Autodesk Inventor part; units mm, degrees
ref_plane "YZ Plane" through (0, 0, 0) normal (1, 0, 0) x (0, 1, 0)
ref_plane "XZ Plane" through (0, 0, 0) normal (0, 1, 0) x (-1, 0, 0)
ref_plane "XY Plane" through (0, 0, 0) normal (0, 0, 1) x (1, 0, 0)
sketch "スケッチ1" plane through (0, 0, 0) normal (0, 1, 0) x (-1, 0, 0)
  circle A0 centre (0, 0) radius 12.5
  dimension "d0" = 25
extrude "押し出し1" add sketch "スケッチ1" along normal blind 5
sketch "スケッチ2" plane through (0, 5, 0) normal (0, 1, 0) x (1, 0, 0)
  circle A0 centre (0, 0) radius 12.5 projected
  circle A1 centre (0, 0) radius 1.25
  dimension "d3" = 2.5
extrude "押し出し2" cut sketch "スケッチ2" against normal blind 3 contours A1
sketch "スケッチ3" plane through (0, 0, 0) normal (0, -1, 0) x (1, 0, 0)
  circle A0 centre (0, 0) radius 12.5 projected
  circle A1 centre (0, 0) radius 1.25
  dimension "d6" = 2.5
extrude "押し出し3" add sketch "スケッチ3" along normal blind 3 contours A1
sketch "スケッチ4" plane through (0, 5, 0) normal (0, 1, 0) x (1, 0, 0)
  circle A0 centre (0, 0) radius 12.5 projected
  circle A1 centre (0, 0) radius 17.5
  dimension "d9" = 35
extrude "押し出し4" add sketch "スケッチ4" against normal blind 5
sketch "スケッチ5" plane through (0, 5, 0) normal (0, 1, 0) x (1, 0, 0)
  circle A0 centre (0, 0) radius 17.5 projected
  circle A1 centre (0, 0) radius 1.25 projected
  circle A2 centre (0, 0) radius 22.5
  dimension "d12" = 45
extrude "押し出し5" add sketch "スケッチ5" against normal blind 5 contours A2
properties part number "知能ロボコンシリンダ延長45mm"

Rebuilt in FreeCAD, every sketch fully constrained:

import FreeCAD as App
import Part
import Sketcher
from FreeCAD import Vector

doc = App.newDocument("Part")
body = doc.addObject("PartDesign::Body", "Body")

sketch1 = body.newObject("Sketcher::SketchObject", "Sketch")
sketch1.AttachmentSupport = (doc.getObject("XZ_Plane"), [""])
sketch1.MapMode = "FlatFace"
sketch1.addGeometry(Part.Circle(Vector(0, 0, 0), Vector(0, 0, 1), 12), False)
sketch1.addConstraint(Sketcher.Constraint("Coincident", 0, 3, -1, 1))
sketch1.addConstraint(Sketcher.Constraint("Diameter", 0, 25.0))
pad1 = body.newObject("PartDesign::Pad", "Pad")
pad1.Profile = sketch1
pad1.Length = 5
pad1.Reversed = True

sketch2 = body.newObject("Sketcher::SketchObject", "Sketch001")
sketch2.AttachmentSupport = (doc.getObject("XZ_Plane"), [""])
sketch2.MapMode = "FlatFace"
sketch2.AttachmentOffset = App.Placement(Vector(0, 0, -5), App.Rotation())
sketch2.addGeometry(Part.Circle(Vector(0, 0, 0), Vector(0, 0, 1), 1.2), False)
sketch2.addConstraint(Sketcher.Constraint("Coincident", 0, 3, -1, 1))
sketch2.addConstraint(Sketcher.Constraint("Diameter", 0, 2.5))
pocket1 = body.newObject("PartDesign::Pocket", "Pocket")
pocket1.Profile = sketch2
pocket1.Length = 3
pocket1.Reversed = True

sketch3 = body.newObject("Sketcher::SketchObject", "Sketch002")
sketch3.AttachmentSupport = (doc.getObject("XZ_Plane"), [""])
sketch3.MapMode = "FlatFace"
sketch3.addGeometry(Part.Circle(Vector(0, 0, 0), Vector(0, 0, 1), 1.2), False)
sketch3.addConstraint(Sketcher.Constraint("Coincident", 0, 3, -1, 1))
sketch3.addConstraint(Sketcher.Constraint("Diameter", 0, 2.5))
pad2 = body.newObject("PartDesign::Pad", "Pad001")
pad2.Profile = sketch3
pad2.Length = 3

sketch4 = body.newObject("Sketcher::SketchObject", "Sketch003")
sketch4.AttachmentSupport = (doc.getObject("XZ_Plane"), [""])
sketch4.MapMode = "FlatFace"
sketch4.AttachmentOffset = App.Placement(Vector(0, 0, -5), App.Rotation())
sketch4.addGeometry(Part.Circle(Vector(0, 0, 0), Vector(0, 0, 1), 18), False)
sketch4.addGeometry(Part.Circle(Vector(0, 0, 0), Vector(0, 0, 1), 12), False)
sketch4.addConstraint(Sketcher.Constraint("Coincident", 0, 3, -1, 1))
sketch4.addConstraint(Sketcher.Constraint("Coincident", 1, 3, -1, 1))
sketch4.addConstraint(Sketcher.Constraint("Diameter", 0, 35.0))
sketch4.addConstraint(Sketcher.Constraint("Diameter", 1, 25.0))
pad3 = body.newObject("PartDesign::Pad", "Pad002")
pad3.Profile = sketch4
pad3.Length = 5

sketch5 = body.newObject("Sketcher::SketchObject", "Sketch004")
sketch5.AttachmentSupport = (doc.getObject("XZ_Plane"), [""])
sketch5.MapMode = "FlatFace"
sketch5.AttachmentOffset = App.Placement(Vector(0, 0, -5), App.Rotation())
sketch5.addGeometry(Part.Circle(Vector(0, 0, 0), Vector(0, 0, 1), 22), False)
sketch5.addGeometry(Part.Circle(Vector(0, 0, 0), Vector(0, 0, 1), 18), False)
sketch5.addConstraint(Sketcher.Constraint("Coincident", 0, 3, -1, 1))
sketch5.addConstraint(Sketcher.Constraint("Coincident", 1, 3, -1, 1))
sketch5.addConstraint(Sketcher.Constraint("Diameter", 0, 45.0))
sketch5.addConstraint(Sketcher.Constraint("Diameter", 1, 35.0))
pad4 = body.newObject("PartDesign::Pad", "Pad003")
pad4.Profile = sketch5
pad4.Length = 5

doc.recompute()
